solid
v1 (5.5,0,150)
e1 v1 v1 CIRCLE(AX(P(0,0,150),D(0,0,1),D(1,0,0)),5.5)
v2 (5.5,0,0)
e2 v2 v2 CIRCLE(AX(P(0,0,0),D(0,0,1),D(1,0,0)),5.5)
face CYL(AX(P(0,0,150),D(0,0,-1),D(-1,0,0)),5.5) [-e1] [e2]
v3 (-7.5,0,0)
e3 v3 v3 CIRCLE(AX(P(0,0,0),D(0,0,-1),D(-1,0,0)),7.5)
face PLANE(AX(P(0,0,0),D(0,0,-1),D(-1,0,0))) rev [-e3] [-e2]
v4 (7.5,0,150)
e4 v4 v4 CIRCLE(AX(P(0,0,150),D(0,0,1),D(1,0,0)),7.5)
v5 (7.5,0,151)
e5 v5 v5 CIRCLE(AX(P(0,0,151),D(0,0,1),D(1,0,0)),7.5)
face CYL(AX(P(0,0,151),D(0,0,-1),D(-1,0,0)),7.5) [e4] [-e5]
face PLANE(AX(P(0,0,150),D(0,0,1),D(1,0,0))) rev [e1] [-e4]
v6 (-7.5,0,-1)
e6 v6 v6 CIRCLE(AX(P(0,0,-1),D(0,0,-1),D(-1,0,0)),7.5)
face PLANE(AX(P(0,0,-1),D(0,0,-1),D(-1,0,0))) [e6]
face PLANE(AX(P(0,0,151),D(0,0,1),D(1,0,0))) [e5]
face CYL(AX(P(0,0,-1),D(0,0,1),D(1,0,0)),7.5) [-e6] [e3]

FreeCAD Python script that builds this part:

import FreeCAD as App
import Part
import Sketcher
from FreeCAD import Vector
Q = App.Units.Quantity

doc = App.newDocument("Part")
body = doc.addObject("PartDesign::Body", "Body")

# Sketch on XY plane
sketch1 = body.newObject("Sketcher::SketchObject", "Sketch")
sketch1.AttachmentSupport = (doc.getObject("XY_Plane"), [""])
sketch1.MapMode = "FlatFace"
sketch1.addGeometry(Part.Circle(Vector(0, 0, 0), Vector(0, 0, 1), 6), False)
sketch1.addConstraint(Sketcher.Constraint("Coincident", 0, 3, -1, 1))
sketch1.addConstraint(Sketcher.Constraint("Diameter", 0, Q("11 mm")))
pad1 = body.newObject("PartDesign::Pad", "Pad")
pad1.Profile = sketch1
pad1.Length = 150

# Sketch on XY plane
sketch2 = body.newObject("Sketcher::SketchObject", "Sketch001")
sketch2.AttachmentSupport = (doc.getObject("XY_Plane"), [""])
sketch2.MapMode = "FlatFace"
sketch2.addGeometry(Part.Circle(Vector(0, 0, 0), Vector(0, 0, 1), 8), False)
sketch2.addConstraint(Sketcher.Constraint("Coincident", 0, 3, -1, 1))
sketch2.addConstraint(Sketcher.Constraint("Diameter", 0, Q("15 mm")))
pad2 = body.newObject("PartDesign::Pad", "Pad001")
pad2.Profile = sketch2
pad2.Length = 1
pad2.Reversed = True

# Sketch on XY plane
sketch3 = body.newObject("Sketcher::SketchObject", "Sketch002")
sketch3.AttachmentSupport = (doc.getObject("XY_Plane"), [""])
sketch3.MapMode = "FlatFace"
sketch3.AttachmentOffset = App.Placement(Vector(0, 0, 150), App.Rotation())
sketch3.addGeometry(Part.Circle(Vector(0, 0, 0), Vector(0, 0, 1), 8), False)
sketch3.addConstraint(Sketcher.Constraint("Coincident", 0, 3, -1, 1))
sketch3.addConstraint(Sketcher.Constraint("Diameter", 0, Q("15 mm")))
pad3 = body.newObject("PartDesign::Pad", "Pad002")
pad3.Profile = sketch3
pad3.Length = 1

doc.recompute()
